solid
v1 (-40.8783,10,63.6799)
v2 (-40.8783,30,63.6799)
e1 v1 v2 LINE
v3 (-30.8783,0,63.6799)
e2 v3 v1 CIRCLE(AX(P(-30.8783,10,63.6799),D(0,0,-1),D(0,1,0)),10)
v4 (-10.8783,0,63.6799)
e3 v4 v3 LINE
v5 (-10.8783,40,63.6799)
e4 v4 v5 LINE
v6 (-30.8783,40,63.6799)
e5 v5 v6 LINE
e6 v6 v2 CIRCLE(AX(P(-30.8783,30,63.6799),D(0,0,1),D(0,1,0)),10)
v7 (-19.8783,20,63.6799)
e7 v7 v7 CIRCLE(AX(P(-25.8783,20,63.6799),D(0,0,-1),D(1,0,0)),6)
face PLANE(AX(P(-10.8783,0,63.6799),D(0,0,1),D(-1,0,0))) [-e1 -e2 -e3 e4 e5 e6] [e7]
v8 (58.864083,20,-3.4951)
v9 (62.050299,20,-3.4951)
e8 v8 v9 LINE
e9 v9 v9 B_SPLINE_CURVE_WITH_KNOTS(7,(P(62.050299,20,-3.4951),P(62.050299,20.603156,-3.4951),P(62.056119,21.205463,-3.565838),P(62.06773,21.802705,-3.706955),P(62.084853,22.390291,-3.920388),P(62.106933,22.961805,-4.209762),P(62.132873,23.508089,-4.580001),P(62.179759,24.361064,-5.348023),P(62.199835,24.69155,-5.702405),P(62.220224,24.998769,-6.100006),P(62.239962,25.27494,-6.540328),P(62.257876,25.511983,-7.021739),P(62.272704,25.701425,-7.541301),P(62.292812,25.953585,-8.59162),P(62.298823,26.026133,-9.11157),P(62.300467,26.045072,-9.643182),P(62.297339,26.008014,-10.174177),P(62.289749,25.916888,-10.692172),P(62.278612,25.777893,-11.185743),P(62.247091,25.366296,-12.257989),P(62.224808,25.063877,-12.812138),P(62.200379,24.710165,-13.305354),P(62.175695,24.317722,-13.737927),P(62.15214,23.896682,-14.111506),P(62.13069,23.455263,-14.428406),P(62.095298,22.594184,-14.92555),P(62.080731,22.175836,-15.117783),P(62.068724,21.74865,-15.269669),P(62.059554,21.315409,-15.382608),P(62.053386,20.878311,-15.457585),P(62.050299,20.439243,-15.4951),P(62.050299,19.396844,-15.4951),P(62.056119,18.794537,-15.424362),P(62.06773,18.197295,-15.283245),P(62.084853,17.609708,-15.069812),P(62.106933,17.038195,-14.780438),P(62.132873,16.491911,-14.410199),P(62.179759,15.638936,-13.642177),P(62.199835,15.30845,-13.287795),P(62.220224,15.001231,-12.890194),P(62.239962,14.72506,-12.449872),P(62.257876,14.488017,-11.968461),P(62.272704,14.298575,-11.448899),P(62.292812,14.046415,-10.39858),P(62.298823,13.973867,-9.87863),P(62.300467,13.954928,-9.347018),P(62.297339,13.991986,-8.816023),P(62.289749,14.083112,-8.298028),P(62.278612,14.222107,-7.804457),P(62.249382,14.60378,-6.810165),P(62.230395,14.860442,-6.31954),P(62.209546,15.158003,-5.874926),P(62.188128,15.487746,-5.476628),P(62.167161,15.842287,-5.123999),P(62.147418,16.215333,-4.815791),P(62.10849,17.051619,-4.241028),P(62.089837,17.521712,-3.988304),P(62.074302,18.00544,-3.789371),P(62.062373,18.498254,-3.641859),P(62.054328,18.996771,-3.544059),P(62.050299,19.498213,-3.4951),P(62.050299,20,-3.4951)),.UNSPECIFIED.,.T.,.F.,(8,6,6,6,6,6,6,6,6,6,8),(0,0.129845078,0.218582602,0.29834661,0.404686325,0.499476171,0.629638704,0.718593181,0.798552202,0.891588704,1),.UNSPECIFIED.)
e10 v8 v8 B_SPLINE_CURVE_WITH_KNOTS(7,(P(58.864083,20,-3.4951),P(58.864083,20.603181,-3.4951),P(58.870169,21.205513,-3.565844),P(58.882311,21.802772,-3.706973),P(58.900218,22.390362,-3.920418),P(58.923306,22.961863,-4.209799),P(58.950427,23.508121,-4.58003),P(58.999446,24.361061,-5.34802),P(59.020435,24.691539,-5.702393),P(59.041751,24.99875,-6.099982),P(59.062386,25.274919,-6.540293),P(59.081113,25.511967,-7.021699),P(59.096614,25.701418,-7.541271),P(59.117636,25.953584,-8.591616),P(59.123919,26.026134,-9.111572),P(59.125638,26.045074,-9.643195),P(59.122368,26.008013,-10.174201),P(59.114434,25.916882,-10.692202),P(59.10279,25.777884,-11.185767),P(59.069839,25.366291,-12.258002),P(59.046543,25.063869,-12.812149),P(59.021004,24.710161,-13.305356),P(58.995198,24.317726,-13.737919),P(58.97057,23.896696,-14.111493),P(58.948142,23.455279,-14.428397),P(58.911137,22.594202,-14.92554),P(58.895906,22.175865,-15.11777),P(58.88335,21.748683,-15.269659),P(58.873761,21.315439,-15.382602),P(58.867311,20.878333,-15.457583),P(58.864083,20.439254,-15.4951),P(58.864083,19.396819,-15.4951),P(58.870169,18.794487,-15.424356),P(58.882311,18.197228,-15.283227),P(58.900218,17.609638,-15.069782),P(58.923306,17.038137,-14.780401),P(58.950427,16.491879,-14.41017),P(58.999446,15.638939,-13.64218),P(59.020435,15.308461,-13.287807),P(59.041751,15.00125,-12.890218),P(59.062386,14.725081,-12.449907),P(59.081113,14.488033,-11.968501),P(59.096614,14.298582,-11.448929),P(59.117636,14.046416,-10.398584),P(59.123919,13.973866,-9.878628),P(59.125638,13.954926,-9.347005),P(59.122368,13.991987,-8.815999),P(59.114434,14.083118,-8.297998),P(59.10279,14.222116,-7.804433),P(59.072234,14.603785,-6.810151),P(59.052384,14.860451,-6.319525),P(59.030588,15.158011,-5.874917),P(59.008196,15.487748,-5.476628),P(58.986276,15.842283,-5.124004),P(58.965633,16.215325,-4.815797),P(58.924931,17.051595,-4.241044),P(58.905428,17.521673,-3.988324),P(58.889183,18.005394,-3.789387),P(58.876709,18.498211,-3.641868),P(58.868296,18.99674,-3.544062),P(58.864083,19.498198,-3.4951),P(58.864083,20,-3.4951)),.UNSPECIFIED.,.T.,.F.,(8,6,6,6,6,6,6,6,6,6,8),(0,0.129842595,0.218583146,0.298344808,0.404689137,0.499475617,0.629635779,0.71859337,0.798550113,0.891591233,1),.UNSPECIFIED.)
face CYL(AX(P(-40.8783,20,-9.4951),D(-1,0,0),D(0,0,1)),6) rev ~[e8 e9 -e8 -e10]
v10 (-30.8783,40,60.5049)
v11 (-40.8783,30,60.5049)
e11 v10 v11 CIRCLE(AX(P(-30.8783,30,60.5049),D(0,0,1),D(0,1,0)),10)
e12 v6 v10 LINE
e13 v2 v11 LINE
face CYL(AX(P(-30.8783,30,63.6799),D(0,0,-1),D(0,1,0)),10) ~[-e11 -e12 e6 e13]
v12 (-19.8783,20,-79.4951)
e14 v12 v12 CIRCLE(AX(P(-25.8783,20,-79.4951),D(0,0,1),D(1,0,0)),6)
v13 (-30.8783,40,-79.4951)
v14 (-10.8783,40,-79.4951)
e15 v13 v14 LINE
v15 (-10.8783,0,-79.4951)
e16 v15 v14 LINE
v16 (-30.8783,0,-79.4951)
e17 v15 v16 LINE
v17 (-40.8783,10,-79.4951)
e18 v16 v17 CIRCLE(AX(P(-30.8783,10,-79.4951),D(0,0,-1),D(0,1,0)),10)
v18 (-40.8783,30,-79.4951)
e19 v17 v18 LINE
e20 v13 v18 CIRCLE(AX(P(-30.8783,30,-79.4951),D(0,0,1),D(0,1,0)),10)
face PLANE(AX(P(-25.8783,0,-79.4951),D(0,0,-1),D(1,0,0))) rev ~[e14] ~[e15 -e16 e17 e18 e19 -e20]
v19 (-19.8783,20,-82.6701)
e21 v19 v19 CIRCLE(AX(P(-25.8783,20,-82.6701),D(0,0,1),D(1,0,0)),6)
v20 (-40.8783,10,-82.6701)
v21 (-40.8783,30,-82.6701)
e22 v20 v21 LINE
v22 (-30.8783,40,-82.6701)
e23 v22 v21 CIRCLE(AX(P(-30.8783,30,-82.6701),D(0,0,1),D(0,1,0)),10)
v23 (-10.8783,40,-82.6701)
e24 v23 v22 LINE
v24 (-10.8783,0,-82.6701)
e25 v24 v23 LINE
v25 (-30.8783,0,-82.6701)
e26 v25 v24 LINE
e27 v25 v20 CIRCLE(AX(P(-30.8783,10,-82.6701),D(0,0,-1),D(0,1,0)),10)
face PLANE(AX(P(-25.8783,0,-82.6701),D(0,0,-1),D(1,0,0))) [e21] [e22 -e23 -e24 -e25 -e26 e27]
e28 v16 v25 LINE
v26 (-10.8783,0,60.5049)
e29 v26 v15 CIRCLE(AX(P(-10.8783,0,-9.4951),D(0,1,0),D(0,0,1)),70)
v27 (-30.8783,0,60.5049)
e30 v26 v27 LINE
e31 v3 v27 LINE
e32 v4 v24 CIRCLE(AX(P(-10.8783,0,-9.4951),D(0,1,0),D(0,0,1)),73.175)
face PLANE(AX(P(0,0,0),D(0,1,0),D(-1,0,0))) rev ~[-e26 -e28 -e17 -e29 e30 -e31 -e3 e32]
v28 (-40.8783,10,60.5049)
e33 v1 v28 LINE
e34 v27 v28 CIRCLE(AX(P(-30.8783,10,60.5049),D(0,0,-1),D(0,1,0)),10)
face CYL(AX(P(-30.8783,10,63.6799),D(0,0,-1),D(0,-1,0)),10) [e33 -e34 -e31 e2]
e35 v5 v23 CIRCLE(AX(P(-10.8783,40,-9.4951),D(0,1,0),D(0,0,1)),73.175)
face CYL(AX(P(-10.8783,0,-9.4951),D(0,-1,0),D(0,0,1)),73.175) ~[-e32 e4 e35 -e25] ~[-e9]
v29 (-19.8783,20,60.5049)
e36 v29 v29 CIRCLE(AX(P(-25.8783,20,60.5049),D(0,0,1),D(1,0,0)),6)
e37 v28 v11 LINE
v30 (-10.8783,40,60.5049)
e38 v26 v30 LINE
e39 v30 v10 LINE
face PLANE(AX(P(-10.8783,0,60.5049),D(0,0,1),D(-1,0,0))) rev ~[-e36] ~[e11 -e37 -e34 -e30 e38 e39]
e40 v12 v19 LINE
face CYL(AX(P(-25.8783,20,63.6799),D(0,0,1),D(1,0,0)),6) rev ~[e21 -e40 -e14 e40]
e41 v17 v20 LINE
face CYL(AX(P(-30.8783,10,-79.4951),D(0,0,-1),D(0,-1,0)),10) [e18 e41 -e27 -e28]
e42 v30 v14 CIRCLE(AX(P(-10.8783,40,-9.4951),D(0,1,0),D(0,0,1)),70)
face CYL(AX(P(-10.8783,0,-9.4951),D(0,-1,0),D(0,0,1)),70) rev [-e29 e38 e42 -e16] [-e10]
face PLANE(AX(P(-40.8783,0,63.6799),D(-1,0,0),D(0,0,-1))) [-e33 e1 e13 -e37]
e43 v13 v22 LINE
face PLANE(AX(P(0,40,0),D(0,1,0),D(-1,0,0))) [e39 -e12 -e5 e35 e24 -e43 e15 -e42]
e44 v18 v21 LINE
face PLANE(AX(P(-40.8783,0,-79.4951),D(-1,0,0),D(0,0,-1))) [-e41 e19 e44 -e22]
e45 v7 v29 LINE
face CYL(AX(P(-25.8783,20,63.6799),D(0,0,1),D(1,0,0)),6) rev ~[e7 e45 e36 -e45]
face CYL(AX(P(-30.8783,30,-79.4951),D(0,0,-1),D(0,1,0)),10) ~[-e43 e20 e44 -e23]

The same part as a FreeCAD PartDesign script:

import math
import FreeCAD as App
import Part
import Sketcher

V = App.Vector
Q = App.Units.Quantity


def edges_at(feature, points):
    """Names of the edges that pass closest to the given points."""
    edges = feature.Shape.Edges
    near = lambda p: min(range(len(edges)), key=lambda i: edges[i].distToShape(Part.Vertex(*p))[0])
    return sorted({f"Edge{near(p) + 1}" for p in points})

doc = App.newDocument("Part")
body = doc.addObject("PartDesign::Body", "Body")

# Sketch on XZ plane
sketch1 = body.newObject("Sketcher::SketchObject", "Sketch")
sketch1.AttachmentSupport = (doc.getObject("XZ_Plane"), [""])
sketch1.MapMode = "FlatFace"
sketch1.addGeometry([
    Part.LineSegment(V(-40.9, 63.7, 0), V(-10.9, 63.7, 0)),  # 0
    Part.ArcOfCircle(Part.Circle(V(-10.9, -9.5, 0), V(0, 0, 1), 73.2), math.radians(-90), math.radians(90)),  # 1
    Part.LineSegment(V(-10.9, -82.7, 0), V(-40.9, -82.7, 0)),  # 2
    Part.LineSegment(V(-40.9, -82.7, 0), V(-40.9, -79.5, 0)),  # 3
    Part.LineSegment(V(-40.9, -79.5, 0), V(-10.9, -79.5, 0)),  # 4
    Part.ArcOfCircle(Part.Circle(V(-10.9, -9.5, 0), V(0, 0, 1), 70), math.radians(-90), math.radians(90)),  # 5
    Part.LineSegment(V(-10.9, 60.5, 0), V(-40.9, 60.5, 0)),  # 6
    Part.LineSegment(V(-40.9, 60.5, 0), V(-40.9, 63.7, 0)),  # 7
], False)
sketch1.addConstraint([
    Sketcher.Constraint("Tangent", 0, 2, 1, 2),
    Sketcher.Constraint("Tangent", 1, 1, 2, 1),
    Sketcher.Constraint("Coincident", 2, 2, 3, 1),
    Sketcher.Constraint("Coincident", 3, 2, 4, 1),
    Sketcher.Constraint("Tangent", 4, 2, 5, 1),
    Sketcher.Constraint("Tangent", 5, 2, 6, 1),
    Sketcher.Constraint("Coincident", 6, 2, 7, 1),
    Sketcher.Constraint("Coincident", 7, 2, 0, 1),
    Sketcher.Constraint("Horizontal", 0),
    Sketcher.Constraint("Horizontal", 2),
    Sketcher.Constraint("Vertical", 3),
    Sketcher.Constraint("Horizontal", 4),
    Sketcher.Constraint("Horizontal", 6),
    Sketcher.Constraint("Vertical", 7),
    Sketcher.Constraint("Coincident", 5, 3, 1, 3),
    Sketcher.Constraint("Vertical", 3, 2, 6, 2),
    Sketcher.Constraint("Radius", 5, Q("70 mm")),
    Sketcher.Constraint("DistanceX", 0, 1, 0, 2, Q("30 mm")),
    Sketcher.Constraint("DistanceY", 3, 1, 3, 2, Q("3.175 mm")),
    Sketcher.Constraint("DistanceY", -1, 1, 0, 2, Q("63.68 mm")),
    Sketcher.Constraint("DistanceX", 1, 3, -1, 1, Q("10.8783 mm")),
])
pad1 = body.newObject("PartDesign::Pad", "Pad")
pad1.Profile = sketch1
pad1.Length = 40
pad1.Reversed = True

# Sketch on XY plane
sketch2 = body.newObject("Sketcher::SketchObject", "Sketch001")
sketch2.AttachmentSupport = (doc.getObject("XY_Plane"), [""])
sketch2.MapMode = "FlatFace"
sketch2.AttachmentOffset = App.Placement(V(0, 0, 63.6799), App.Rotation())
sketch2.addGeometry(Part.Circle(V(-26, 20, 0), V(0, 0, 1), 6), False)
sketch2.addConstraint([
    Sketcher.Constraint("Diameter", 0, Q("12 mm")),
    Sketcher.Constraint("DistanceY", -1, 1, 0, 3, Q("20 mm")),
    Sketcher.Constraint("DistanceX", 0, 3, -1, 1, Q("25.8783 mm")),
])
pocket1 = body.newObject("PartDesign::Pocket", "Pocket")
pocket1.Profile = sketch2
pocket1.Length = 200
doc.recompute()

fillet = body.newObject("PartDesign::Fillet", "Fillet")
fillet.Base = (pocket1, edges_at(pocket1, [(-40.878, 40, 62.092), (-40.878, 0, 62.092)]))
fillet.Radius = 10
doc.recompute()

fillet2 = body.newObject("PartDesign::Fillet", "Fillet001")
fillet2.Base = (fillet, edges_at(fillet, [(-40.878, 40, -81.083), (-40.878, 0, -81.083)]))
fillet2.Radius = 10

# Sketch on YZ plane
sketch3 = body.newObject("Sketcher::SketchObject", "Sketch002")
sketch3.AttachmentSupport = (doc.getObject("YZ_Plane"), [""])
sketch3.MapMode = "FlatFace"
sketch3.AttachmentOffset = App.Placement(V(0, 0, -40.8783), App.Rotation())
sketch3.addGeometry(Part.Circle(V(20, -9, 0), V(0, 0, 1), 6), False)
sketch3.addConstraint([
    Sketcher.Constraint("Diameter", 0, Q("12 mm")),
    Sketcher.Constraint("DistanceX", -1, 1, 0, 3, Q("20 mm")),
    Sketcher.Constraint("DistanceY", 0, 3, -1, 1, Q("9.495 mm")),
])
pocket2 = body.newObject("PartDesign::Pocket", "Pocket001")
pocket2.Profile = sketch3
pocket2.Length = 200
pocket2.Reversed = True

doc.recompute()
